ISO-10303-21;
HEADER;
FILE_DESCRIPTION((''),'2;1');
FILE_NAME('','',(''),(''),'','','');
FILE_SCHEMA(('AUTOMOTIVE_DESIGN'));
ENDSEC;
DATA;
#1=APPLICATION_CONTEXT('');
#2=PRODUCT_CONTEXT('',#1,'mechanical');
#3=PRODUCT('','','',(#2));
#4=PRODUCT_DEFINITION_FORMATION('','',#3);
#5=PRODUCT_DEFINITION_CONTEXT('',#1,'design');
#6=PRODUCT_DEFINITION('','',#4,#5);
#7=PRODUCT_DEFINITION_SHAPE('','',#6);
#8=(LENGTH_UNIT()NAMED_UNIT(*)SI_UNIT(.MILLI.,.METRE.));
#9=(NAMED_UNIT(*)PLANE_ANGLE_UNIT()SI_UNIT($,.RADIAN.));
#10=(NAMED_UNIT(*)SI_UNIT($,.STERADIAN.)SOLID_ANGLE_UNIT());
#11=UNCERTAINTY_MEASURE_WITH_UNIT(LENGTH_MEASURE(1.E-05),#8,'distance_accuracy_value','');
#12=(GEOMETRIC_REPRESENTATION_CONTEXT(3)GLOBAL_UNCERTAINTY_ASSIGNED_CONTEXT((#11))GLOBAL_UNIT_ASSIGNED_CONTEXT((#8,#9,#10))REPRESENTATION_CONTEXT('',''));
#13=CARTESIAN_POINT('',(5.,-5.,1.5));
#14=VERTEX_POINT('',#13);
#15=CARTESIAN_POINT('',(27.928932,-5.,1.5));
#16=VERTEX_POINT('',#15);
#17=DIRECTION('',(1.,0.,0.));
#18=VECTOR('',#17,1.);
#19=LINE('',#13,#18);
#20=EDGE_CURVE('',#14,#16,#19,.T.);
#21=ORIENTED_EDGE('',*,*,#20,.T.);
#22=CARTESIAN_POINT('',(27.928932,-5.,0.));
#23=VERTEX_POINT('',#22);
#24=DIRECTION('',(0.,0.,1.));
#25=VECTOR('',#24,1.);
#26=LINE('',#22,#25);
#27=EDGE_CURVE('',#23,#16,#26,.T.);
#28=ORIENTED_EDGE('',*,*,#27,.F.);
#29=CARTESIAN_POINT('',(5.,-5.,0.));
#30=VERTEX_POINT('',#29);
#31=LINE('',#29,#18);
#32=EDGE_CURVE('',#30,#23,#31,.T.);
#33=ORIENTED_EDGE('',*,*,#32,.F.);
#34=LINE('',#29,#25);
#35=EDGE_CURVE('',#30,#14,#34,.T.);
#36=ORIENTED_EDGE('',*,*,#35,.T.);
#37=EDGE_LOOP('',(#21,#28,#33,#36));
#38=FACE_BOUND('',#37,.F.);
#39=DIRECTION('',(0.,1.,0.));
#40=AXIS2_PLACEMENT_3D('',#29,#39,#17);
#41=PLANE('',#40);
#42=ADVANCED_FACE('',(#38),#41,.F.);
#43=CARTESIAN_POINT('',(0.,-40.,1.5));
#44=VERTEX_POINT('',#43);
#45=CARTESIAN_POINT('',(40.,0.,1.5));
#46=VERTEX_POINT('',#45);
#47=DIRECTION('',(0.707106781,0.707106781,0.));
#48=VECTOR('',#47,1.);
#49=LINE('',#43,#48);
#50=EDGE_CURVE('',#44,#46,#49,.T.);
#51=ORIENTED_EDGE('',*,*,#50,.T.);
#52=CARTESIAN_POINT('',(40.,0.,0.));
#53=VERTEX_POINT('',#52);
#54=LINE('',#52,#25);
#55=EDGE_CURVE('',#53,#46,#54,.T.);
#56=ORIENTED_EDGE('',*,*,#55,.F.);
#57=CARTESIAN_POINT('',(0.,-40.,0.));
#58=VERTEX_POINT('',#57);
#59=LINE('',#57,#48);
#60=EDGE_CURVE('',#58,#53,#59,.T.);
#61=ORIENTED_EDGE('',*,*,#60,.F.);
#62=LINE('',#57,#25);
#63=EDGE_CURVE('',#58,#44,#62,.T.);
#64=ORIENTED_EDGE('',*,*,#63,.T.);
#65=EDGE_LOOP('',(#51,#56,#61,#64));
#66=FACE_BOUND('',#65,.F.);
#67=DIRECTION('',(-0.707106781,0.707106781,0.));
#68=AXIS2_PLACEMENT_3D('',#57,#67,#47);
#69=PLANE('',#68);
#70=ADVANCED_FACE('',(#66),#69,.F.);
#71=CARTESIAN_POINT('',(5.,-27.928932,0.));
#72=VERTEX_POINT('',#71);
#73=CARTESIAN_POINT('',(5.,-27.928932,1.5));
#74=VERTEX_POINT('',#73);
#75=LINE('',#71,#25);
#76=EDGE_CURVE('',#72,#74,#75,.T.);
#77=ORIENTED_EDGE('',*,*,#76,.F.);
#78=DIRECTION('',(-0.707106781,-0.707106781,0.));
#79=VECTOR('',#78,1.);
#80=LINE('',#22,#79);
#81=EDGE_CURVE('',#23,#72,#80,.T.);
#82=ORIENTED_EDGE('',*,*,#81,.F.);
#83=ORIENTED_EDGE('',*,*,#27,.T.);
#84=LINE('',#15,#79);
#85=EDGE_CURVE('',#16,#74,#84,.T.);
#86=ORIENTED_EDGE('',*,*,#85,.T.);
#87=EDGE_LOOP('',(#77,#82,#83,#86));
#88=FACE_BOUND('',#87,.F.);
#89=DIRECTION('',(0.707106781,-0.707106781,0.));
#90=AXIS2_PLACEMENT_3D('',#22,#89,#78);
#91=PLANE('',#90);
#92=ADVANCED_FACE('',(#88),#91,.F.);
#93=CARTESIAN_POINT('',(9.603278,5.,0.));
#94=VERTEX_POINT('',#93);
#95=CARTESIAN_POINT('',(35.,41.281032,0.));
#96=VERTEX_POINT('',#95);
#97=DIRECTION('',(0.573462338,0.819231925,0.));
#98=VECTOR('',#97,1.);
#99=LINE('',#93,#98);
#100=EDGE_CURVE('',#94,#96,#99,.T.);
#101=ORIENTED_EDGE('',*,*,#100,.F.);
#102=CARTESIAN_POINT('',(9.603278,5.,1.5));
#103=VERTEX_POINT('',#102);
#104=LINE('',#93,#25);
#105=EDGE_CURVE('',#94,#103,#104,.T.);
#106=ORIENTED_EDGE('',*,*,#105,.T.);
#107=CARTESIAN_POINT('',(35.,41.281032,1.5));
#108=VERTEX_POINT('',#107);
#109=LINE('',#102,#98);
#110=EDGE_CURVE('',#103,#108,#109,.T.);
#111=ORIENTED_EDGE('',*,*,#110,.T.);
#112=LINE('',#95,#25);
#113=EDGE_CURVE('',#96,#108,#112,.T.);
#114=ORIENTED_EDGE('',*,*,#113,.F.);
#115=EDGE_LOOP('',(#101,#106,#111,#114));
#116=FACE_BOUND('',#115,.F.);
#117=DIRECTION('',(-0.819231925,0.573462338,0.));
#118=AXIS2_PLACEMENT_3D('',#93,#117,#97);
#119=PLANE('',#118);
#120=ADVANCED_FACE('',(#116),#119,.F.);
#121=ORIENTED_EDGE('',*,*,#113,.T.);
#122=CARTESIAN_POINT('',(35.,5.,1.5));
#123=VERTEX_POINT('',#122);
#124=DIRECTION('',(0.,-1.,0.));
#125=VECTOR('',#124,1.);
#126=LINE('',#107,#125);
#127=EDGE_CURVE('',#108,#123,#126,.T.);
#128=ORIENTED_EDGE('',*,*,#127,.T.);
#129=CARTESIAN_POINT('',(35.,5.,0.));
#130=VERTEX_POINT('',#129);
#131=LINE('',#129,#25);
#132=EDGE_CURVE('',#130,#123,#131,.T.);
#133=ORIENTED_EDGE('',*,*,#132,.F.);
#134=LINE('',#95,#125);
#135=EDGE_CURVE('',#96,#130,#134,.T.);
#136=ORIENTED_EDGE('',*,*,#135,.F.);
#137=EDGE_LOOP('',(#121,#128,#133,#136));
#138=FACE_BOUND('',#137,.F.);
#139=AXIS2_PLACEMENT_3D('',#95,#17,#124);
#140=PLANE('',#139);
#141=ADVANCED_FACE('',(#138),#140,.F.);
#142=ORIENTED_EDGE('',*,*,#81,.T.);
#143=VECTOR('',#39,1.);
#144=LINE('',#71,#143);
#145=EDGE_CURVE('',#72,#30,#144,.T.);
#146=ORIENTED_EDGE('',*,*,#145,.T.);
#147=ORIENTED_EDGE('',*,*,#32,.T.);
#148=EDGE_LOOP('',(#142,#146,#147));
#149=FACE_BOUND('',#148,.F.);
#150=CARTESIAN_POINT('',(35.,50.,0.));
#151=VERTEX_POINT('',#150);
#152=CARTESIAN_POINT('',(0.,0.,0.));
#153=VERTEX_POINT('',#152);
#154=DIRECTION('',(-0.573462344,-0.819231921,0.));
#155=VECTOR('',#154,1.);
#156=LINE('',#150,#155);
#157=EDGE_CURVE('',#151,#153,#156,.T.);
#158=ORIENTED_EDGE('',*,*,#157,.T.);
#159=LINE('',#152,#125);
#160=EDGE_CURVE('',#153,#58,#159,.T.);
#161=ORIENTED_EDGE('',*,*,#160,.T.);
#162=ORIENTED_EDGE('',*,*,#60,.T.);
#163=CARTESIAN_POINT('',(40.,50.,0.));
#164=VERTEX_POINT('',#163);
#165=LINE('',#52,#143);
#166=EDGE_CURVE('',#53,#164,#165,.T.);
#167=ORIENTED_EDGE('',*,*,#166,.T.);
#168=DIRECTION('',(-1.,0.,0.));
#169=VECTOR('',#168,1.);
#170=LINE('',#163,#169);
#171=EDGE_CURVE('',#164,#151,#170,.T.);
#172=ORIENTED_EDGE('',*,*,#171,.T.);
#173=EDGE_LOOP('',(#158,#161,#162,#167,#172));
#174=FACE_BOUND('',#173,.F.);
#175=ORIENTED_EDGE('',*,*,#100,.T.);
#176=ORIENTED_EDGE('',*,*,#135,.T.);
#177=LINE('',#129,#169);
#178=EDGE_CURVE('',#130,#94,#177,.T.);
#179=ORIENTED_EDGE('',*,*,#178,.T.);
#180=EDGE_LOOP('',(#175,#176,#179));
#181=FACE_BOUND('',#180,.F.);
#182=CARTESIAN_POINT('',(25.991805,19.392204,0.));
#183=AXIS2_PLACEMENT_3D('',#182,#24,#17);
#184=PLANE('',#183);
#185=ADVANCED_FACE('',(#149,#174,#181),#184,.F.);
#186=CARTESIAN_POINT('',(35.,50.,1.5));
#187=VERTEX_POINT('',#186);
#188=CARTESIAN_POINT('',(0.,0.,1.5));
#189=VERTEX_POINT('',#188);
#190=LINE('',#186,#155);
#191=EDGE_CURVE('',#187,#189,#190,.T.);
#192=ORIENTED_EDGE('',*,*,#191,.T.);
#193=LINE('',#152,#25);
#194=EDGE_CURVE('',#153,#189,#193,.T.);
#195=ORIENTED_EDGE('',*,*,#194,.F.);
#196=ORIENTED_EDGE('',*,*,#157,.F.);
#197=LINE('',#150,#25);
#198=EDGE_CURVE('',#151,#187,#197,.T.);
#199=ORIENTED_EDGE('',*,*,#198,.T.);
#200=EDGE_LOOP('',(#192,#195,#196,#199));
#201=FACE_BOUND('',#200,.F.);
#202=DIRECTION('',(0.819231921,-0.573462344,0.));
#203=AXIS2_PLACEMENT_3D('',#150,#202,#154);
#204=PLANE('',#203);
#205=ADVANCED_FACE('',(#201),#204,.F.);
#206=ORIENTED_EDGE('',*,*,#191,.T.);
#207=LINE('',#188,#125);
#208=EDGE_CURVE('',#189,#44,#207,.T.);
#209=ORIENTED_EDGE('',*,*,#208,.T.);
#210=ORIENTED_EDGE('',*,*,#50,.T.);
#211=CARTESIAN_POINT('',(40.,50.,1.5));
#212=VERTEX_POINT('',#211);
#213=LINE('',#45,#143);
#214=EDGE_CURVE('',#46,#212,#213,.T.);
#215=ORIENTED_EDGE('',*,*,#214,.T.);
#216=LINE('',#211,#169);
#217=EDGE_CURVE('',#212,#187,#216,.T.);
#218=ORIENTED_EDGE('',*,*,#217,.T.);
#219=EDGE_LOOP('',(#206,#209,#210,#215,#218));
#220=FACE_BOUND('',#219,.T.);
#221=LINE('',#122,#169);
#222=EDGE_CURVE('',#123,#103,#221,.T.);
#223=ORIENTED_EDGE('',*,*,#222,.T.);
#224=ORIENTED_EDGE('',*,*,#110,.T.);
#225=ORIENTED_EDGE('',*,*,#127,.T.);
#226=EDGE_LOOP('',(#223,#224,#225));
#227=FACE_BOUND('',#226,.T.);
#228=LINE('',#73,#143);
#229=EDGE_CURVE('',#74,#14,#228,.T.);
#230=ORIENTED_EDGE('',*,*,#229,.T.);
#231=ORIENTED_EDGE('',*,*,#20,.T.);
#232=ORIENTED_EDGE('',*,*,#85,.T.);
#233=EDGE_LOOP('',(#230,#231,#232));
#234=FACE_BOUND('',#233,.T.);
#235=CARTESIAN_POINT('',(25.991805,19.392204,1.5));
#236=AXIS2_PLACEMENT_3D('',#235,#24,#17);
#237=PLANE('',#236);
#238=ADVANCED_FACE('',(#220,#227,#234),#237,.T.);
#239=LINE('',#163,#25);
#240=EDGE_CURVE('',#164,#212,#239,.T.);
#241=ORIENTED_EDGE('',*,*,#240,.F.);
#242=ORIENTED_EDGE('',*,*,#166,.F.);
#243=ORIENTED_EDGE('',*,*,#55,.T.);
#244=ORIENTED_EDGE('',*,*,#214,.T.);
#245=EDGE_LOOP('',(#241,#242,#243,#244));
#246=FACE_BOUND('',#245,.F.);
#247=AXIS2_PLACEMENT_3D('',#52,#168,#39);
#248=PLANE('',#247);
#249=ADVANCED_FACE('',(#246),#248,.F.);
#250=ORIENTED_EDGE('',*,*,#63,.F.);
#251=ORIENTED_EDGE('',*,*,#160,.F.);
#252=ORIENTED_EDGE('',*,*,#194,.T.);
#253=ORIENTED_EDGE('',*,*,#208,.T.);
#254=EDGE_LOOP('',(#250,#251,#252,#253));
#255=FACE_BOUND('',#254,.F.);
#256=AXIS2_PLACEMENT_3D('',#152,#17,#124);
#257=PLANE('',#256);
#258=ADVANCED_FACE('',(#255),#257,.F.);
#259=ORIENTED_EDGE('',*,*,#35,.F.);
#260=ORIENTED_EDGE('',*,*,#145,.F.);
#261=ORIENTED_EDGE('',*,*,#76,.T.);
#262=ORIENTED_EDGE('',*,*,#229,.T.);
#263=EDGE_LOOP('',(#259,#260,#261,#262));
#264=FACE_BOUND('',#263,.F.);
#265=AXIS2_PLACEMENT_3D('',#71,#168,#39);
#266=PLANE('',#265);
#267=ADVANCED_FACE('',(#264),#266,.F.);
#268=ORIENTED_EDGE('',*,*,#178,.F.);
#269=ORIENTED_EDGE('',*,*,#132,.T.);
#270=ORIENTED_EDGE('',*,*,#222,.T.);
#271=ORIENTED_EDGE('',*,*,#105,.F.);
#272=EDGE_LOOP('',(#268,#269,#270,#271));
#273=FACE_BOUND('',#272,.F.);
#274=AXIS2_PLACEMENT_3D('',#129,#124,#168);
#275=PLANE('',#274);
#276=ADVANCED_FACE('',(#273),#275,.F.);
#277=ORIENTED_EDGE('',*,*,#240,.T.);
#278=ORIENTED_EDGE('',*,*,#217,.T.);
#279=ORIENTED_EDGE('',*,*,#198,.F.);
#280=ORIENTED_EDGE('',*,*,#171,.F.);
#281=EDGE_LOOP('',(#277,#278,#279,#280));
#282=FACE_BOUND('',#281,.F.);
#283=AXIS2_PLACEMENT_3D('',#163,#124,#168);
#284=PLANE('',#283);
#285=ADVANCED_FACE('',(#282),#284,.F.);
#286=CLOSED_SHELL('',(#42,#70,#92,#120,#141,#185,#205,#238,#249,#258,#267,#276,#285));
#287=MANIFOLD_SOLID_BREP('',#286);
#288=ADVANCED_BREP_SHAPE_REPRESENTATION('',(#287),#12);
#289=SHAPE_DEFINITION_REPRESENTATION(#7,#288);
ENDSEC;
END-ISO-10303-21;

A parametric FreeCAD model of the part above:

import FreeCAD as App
import Part
import Sketcher


def add_polygon(sketch, points):
    """Adds a closed chain of lines whose ends are joined by coincident constraints."""
    first, n = sketch.GeometryCount, len(points)
    for a, b in zip(points, points[1:] + points[:1]):
        sketch.addGeometry(Part.LineSegment(App.Vector(*a, 0), App.Vector(*b, 0)), False)
    for i in range(n):
        sketch.addConstraint(Sketcher.Constraint("Coincident", first + i, 2, first + (i + 1) % n, 1))

doc = App.newDocument("Part")
body = doc.addObject("PartDesign::Body", "Body")

# Sketch on XY plane
sketch1 = doc.addObject("Sketcher::SketchObject", "Sketch")
body.addObject(sketch1)
sketch1.AttachmentSupport = (doc.XY_Plane, [""])
sketch1.MapMode = "FlatFace"
add_polygon(sketch1, [(35, 50), (0, 0), (0, -40), (40, 0), (40, 50)])  # lines 0-4
add_polygon(sketch1, [(28, -5), (5, -28), (5, -5)])  # lines 5-7
add_polygon(sketch1, [(35, 5), (10, 5), (35, 41)])  # lines 8-10
sketch1.addConstraint([
    Sketcher.Constraint("Vertical", 1),
    Sketcher.Constraint("Vertical", 3),
    Sketcher.Constraint("Horizontal", 4),
    Sketcher.Constraint("Vertical", 6),
    Sketcher.Constraint("Horizontal", 7),
    Sketcher.Constraint("Horizontal", 8),
    Sketcher.Constraint("Vertical", 10),
    Sketcher.Constraint("Coincident", 0, 2, -1, 1),
    Sketcher.Constraint("PointOnObject", 2, 2, -1),
    Sketcher.Constraint("Parallel", 2, 5),
    Sketcher.Constraint("Parallel", 0, 9),
    Sketcher.Constraint("Vertical", 4, 2, 9, 2),
    Sketcher.Constraint("Equal", 7, 6),
    Sketcher.Constraint("DistanceX", 4, 2, 4, 1, 5.0),
    Sketcher.Constraint("DistanceY", 1, 2, 1, 1, 40.0),
    Sketcher.Constraint("DistanceY", 3, 1, 3, 2, 50.0),
    Sketcher.Constraint("DistanceX", -1, 1, 5, 2, 5.0),
    Sketcher.Constraint("DistanceY", 6, 2, -1, 1, 5.0),
    Sketcher.Constraint("DistanceY", -1, 1, 8, 2, 5.0),
    Sketcher.Constraint("DistanceX", 7, 1, 7, 2, 22.928932),
    Sketcher.Constraint("DistanceX", 8, 2, 8, 1, 25.396722),
])
pad1 = doc.addObject("PartDesign::Pad", "Pad")
body.addObject(pad1)
pad1.Profile = sketch1
pad1.Length = 1.5

doc.recompute()
